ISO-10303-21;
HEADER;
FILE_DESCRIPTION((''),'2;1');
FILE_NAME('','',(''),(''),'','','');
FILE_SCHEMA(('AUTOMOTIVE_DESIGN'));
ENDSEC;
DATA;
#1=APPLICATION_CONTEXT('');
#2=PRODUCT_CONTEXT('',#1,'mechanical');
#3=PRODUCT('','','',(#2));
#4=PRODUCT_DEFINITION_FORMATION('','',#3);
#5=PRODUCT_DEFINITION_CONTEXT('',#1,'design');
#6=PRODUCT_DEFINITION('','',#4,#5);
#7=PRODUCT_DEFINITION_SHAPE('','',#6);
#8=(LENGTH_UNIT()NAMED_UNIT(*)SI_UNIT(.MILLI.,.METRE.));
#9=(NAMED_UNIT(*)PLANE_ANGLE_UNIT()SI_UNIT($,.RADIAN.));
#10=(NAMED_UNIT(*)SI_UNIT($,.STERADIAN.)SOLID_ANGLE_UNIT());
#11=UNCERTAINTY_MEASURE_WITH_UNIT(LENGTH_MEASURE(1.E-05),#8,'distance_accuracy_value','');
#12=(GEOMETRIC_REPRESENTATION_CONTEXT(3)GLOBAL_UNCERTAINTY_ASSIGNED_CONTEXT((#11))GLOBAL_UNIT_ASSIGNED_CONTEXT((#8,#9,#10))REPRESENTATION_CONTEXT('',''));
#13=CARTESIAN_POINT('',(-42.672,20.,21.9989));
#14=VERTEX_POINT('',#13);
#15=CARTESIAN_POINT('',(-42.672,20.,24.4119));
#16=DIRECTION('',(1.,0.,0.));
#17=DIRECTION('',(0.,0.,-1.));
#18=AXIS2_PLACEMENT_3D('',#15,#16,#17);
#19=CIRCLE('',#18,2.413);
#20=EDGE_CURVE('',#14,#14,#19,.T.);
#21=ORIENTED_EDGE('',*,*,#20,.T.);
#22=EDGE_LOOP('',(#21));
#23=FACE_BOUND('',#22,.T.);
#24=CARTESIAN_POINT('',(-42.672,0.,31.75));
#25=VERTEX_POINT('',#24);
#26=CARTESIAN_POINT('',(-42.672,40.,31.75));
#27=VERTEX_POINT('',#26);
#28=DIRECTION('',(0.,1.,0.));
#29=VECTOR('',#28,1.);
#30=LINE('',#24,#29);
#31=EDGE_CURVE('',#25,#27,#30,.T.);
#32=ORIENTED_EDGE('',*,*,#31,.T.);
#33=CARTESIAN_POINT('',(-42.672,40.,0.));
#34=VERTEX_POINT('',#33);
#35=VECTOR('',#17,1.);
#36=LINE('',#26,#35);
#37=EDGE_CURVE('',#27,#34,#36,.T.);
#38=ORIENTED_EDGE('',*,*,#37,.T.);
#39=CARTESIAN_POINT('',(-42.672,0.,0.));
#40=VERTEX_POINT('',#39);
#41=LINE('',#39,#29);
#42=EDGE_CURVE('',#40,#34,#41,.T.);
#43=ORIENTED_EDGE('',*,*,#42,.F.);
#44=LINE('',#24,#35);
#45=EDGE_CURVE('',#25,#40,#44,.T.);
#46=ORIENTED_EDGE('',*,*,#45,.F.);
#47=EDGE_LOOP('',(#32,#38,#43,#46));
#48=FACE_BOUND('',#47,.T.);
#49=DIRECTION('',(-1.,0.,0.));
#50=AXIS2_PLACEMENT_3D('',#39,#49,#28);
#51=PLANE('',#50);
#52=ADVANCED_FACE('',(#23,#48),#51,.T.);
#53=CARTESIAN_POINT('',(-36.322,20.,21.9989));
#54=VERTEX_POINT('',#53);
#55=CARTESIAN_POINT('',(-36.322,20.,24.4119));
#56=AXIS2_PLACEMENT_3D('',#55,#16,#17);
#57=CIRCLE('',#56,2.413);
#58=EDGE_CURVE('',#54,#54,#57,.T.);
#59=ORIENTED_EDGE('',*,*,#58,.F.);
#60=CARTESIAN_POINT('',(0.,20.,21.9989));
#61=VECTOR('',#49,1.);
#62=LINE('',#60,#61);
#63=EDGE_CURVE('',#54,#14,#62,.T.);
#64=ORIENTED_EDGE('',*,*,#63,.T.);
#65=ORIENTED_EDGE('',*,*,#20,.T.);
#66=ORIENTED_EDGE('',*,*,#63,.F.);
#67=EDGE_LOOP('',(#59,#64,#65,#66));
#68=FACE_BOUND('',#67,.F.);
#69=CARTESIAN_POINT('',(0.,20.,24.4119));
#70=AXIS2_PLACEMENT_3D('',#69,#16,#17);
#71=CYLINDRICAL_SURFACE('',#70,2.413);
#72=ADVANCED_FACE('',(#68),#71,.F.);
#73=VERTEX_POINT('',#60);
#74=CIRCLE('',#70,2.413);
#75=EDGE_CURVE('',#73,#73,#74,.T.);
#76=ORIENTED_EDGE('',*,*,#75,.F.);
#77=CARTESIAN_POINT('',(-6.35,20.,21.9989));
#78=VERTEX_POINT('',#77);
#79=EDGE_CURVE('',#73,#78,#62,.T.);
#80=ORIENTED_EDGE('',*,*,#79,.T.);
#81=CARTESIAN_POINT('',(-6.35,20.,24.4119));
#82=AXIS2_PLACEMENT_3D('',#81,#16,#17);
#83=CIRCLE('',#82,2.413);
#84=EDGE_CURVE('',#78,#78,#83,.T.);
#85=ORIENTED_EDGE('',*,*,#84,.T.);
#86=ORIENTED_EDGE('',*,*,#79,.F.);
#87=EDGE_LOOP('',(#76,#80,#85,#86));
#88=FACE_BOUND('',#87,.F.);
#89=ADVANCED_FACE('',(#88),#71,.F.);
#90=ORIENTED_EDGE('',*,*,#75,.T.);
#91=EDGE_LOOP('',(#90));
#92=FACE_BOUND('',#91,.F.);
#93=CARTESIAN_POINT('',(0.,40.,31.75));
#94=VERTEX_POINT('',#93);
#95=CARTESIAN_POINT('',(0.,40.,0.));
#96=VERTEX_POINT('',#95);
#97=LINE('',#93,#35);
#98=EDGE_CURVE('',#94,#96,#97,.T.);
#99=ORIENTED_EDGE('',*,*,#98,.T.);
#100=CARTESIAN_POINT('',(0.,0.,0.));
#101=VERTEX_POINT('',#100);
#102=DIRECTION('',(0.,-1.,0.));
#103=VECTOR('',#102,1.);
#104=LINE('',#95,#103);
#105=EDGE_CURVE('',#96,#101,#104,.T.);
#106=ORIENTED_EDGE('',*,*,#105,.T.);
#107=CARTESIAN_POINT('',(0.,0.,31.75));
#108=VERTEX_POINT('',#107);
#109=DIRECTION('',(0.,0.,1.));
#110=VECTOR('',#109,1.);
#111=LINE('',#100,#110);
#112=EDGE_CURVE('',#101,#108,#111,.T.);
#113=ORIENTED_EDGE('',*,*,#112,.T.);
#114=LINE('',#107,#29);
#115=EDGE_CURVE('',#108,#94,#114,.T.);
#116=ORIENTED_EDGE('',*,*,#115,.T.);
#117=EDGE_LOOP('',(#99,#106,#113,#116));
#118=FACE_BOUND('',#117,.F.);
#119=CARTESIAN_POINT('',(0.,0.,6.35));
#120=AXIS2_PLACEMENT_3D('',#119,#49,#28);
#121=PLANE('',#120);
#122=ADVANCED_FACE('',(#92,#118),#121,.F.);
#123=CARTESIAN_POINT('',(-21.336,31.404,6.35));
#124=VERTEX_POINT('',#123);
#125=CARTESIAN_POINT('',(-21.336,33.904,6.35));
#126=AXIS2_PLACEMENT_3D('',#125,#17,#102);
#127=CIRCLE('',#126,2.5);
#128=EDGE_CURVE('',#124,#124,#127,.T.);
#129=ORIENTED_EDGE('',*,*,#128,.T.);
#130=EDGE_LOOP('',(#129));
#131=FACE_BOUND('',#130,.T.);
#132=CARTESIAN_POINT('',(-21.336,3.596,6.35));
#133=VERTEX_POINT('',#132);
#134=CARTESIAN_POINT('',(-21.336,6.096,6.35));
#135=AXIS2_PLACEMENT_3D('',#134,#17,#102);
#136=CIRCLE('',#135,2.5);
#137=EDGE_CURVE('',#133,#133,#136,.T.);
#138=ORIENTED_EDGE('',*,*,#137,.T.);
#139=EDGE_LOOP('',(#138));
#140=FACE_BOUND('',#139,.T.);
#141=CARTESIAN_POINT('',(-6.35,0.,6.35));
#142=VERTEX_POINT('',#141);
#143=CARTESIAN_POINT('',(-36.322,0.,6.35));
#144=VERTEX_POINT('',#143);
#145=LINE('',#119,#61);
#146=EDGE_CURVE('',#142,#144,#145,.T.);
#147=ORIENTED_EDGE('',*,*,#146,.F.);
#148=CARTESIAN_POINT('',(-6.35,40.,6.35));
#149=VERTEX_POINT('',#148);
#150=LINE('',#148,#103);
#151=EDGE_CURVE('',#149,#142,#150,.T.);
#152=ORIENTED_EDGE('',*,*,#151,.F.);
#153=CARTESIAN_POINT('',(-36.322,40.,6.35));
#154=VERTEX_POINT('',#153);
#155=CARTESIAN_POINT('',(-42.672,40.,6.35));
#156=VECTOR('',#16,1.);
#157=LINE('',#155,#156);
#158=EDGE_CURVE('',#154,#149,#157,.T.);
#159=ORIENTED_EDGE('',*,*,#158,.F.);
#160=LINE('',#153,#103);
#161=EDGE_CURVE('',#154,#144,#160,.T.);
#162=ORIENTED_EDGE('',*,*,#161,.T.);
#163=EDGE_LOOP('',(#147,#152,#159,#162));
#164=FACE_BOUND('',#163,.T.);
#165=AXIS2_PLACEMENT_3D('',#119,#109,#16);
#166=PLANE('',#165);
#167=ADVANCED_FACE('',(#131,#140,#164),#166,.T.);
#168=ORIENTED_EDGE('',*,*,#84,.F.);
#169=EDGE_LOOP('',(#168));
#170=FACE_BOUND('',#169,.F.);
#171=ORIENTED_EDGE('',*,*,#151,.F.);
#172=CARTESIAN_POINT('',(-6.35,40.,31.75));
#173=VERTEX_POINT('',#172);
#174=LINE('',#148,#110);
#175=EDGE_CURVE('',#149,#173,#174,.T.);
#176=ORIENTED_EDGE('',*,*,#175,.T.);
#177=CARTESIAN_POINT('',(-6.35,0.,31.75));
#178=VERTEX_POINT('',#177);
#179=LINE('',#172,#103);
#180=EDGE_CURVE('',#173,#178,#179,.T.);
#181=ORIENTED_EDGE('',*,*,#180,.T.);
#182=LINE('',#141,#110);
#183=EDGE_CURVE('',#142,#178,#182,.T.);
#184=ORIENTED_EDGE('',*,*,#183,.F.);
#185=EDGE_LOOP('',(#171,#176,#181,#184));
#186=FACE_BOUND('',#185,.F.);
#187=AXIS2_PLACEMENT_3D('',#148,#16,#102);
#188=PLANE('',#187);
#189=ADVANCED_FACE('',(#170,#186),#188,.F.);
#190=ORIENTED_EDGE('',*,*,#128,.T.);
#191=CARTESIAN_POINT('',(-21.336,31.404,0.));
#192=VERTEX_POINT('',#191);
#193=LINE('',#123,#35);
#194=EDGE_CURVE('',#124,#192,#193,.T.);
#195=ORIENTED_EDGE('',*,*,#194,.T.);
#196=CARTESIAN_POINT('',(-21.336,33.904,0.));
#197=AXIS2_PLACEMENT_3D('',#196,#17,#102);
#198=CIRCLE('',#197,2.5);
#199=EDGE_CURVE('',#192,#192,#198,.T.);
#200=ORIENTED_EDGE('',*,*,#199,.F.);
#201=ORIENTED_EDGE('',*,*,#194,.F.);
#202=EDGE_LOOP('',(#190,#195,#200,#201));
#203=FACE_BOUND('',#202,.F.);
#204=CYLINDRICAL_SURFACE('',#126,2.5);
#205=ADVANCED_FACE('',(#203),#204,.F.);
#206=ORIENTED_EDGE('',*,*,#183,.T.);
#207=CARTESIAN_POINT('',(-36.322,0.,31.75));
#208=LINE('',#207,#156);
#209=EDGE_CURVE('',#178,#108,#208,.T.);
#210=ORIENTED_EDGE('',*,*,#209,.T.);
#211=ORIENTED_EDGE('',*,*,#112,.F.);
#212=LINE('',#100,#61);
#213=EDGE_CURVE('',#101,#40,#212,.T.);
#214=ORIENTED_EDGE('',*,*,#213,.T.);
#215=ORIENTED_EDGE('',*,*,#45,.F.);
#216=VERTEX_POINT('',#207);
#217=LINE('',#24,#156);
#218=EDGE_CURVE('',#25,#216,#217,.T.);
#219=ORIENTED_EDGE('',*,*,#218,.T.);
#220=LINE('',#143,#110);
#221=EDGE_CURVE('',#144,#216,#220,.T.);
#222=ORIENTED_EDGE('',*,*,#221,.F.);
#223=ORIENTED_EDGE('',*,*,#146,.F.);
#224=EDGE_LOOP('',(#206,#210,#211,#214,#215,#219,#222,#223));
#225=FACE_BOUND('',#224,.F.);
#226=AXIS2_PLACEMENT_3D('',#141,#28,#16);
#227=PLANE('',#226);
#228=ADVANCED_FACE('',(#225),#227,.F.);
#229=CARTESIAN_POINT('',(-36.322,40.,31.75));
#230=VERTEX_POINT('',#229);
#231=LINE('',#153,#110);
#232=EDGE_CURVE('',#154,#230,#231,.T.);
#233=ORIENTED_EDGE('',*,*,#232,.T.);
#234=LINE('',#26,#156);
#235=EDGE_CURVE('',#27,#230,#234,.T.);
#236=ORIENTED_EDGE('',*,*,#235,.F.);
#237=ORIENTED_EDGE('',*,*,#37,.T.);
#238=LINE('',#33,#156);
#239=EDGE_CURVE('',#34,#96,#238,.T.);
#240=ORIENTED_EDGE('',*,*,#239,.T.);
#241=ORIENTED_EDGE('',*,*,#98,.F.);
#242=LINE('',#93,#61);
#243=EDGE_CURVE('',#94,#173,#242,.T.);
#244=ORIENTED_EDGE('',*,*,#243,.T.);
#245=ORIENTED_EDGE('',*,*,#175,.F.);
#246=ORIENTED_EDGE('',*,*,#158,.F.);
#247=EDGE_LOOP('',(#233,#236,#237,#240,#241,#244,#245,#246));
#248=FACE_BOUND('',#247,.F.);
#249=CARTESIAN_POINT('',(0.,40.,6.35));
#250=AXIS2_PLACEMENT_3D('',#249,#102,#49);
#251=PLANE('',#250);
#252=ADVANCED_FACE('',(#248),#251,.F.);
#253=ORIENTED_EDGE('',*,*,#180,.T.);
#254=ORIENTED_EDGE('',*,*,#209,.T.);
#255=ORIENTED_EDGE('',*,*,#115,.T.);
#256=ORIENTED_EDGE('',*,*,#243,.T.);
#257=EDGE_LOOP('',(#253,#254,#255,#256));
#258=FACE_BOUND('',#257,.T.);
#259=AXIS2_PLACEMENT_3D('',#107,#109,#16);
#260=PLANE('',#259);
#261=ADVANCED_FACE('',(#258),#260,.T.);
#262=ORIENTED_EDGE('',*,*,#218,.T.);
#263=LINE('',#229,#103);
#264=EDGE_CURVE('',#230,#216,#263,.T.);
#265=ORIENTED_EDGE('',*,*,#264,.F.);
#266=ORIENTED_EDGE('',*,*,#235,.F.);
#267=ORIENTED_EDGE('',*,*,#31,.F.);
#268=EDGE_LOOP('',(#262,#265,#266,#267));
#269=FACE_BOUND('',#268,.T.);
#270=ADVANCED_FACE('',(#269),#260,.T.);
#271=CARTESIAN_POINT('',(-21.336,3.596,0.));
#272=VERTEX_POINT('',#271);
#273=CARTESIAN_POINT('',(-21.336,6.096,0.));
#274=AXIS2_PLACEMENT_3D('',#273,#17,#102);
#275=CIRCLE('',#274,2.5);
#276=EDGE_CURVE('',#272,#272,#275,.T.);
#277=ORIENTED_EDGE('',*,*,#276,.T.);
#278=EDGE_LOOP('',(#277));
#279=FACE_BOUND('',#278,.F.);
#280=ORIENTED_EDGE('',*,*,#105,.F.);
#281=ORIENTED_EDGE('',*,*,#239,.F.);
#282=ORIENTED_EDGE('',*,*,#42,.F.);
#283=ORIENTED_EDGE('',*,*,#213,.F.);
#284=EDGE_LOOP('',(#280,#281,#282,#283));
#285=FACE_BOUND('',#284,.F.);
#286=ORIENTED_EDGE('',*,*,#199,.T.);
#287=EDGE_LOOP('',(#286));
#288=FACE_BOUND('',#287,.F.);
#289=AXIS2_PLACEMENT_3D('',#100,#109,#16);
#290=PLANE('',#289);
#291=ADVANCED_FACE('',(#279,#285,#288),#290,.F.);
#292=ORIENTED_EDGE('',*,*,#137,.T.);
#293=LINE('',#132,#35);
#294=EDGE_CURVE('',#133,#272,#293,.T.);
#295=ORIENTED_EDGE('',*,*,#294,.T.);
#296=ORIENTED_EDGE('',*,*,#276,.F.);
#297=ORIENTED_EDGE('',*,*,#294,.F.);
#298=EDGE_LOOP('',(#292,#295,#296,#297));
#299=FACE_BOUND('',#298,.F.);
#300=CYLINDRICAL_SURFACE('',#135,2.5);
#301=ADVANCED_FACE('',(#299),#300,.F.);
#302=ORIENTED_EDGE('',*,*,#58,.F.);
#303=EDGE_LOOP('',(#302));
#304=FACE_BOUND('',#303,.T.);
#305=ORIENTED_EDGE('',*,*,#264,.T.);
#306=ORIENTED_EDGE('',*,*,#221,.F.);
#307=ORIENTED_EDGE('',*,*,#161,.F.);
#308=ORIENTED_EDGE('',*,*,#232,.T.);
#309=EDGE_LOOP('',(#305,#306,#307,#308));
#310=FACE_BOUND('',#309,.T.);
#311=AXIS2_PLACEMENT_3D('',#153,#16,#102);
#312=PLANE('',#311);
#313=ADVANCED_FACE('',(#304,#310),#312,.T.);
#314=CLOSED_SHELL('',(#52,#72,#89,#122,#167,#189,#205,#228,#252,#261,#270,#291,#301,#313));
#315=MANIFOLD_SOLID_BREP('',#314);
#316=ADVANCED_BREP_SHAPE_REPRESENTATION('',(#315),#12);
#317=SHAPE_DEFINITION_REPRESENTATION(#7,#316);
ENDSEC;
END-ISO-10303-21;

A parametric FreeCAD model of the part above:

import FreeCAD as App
import Part
import Sketcher
Q = App.Units.Quantity

doc = App.newDocument("Part")
body = doc.addObject("PartDesign::Body", "Body")

sketch1 = body.newObject("Sketcher::SketchObject", "Sketch")
sketch1.AttachmentSupport = (doc.getObject("XY_Plane"), [""])
sketch1.MapMode = "FlatFace"
sketch1.addGeometry([
    Part.LineSegment(App.Vector(-42.672, 0, 0), App.Vector(0, 0, 0)),
    Part.LineSegment(App.Vector(0, 0, 0), App.Vector(0, 40, 0)),
    Part.LineSegment(App.Vector(0, 40, 0), App.Vector(-42.672, 40, 0)),
    Part.LineSegment(App.Vector(-42.672, 40, 0), App.Vector(-42.672, 0, 0)),
], False)
sketch1.addConstraint([
    Sketcher.Constraint("Coincident", 0, 2, 1, 1),
    Sketcher.Constraint("Coincident", 1, 2, 2, 1),
    Sketcher.Constraint("Coincident", 2, 2, 3, 1),
    Sketcher.Constraint("Coincident", 3, 2, 0, 1),
    Sketcher.Constraint("Horizontal", 0),
    Sketcher.Constraint("Vertical", 1),
    Sketcher.Constraint("Horizontal", 2),
    Sketcher.Constraint("Vertical", 3),
    Sketcher.Constraint("Coincident", 0, 2, -1, 1),
    Sketcher.Constraint("DistanceX", 0, 1, 0, 2, Q("1.68 in")),
    Sketcher.Constraint("DistanceY", 1, 1, 1, 2, Q("1.5748 in")),
])
pad1 = body.newObject("PartDesign::Pad", "Pad")
pad1.Profile = sketch1
pad1.Length = Q("0.25 in")

sketch2 = body.newObject("Sketcher::SketchObject", "Sketch001")
sketch2.AttachmentSupport = (doc.getObject("XY_Plane"), [""])
sketch2.MapMode = "FlatFace"
sketch2.AttachmentOffset = App.Placement(App.Vector(0, 0, 0.25 * 25.4), App.Rotation())
sketch2.addGeometry([
    Part.LineSegment(App.Vector(-42.672, 40, 0), App.Vector(-42.672, 0, 0)),
    Part.LineSegment(App.Vector(-42.672, 0, 0), App.Vector(-36.322, 0, 0)),
    Part.LineSegment(App.Vector(-36.322, 0, 0), App.Vector(-36.322, 40, 0)),
    Part.LineSegment(App.Vector(-36.322, 40, 0), App.Vector(-42.672, 40, 0)),
], False)
sketch2.addConstraint([
    Sketcher.Constraint("Coincident", 0, 2, 1, 1),
    Sketcher.Constraint("Coincident", 1, 2, 2, 1),
    Sketcher.Constraint("Coincident", 2, 2, 3, 1),
    Sketcher.Constraint("Coincident", 3, 2, 0, 1),
    Sketcher.Constraint("Vertical", 0),
    Sketcher.Constraint("Horizontal", 1),
    Sketcher.Constraint("Vertical", 2),
    Sketcher.Constraint("Horizontal", 3),
    Sketcher.Constraint("PointOnObject", 0, 2, -1),
    Sketcher.Constraint("DistanceX", 1, 1, 1, 2, Q("0.25 in")),
    Sketcher.Constraint("DistanceX", 0, 2, -1, 1, Q("1.68 in")),
    Sketcher.Constraint("DistanceY", 0, 2, 0, 1, Q("1.5748 in")),
])
pad2 = body.newObject("PartDesign::Pad", "Pad001")
pad2.Profile = sketch2
pad2.Length = Q("1 in")

sketch3 = body.newObject("Sketcher::SketchObject", "Sketch002")
sketch3.AttachmentSupport = (doc.getObject("XY_Plane"), [""])
sketch3.MapMode = "FlatFace"
sketch3.AttachmentOffset = App.Placement(App.Vector(0, 0, 0.25 * 25.4), App.Rotation())
sketch3.addGeometry([
    Part.LineSegment(App.Vector(-6.35, 40, 0), App.Vector(-6.35, 0, 0)),
    Part.LineSegment(App.Vector(-6.35, 0, 0), App.Vector(0, 0, 0)),
    Part.LineSegment(App.Vector(0, 0, 0), App.Vector(0, 40, 0)),
    Part.LineSegment(App.Vector(0, 40, 0), App.Vector(-6.35, 40, 0)),
], False)
sketch3.addConstraint([
    Sketcher.Constraint("Coincident", 0, 2, 1, 1),
    Sketcher.Constraint("Coincident", 1, 2, 2, 1),
    Sketcher.Constraint("Coincident", 2, 2, 3, 1),
    Sketcher.Constraint("Coincident", 3, 2, 0, 1),
    Sketcher.Constraint("Vertical", 0),
    Sketcher.Constraint("Horizontal", 1),
    Sketcher.Constraint("Vertical", 2),
    Sketcher.Constraint("Horizontal", 3),
    Sketcher.Constraint("Coincident", 1, 2, -1, 1),
    Sketcher.Constraint("DistanceX", 1, 1, 1, 2, Q("0.25 in")),
    Sketcher.Constraint("DistanceY", 0, 2, 0, 1, Q("1.5748 in")),
])
pad3 = body.newObject("PartDesign::Pad", "Pad002")
pad3.Profile = sketch3
pad3.Length = Q("1 in")

sketch4 = body.newObject("Sketcher::SketchObject", "Sketch003")
sketch4.AttachmentSupport = (doc.getObject("YZ_Plane"), [""])
sketch4.MapMode = "FlatFace"
sketch4.addGeometry(Part.Circle(App.Vector(20, 24.4119, 0), App.Vector(0, 0, 1), 2.413), False)
sketch4.addConstraint([
    Sketcher.Constraint("Diameter", 0, Q("0.19 in")),
    Sketcher.Constraint("DistanceX", -1, 1, 0, 3, Q("0.7874 in")),
    Sketcher.Constraint("DistanceY", -1, 1, 0, 3, Q("0.9611 in")),
])
pocket1 = body.newObject("PartDesign::Pocket", "Pocket")
pocket1.Profile = sketch4
pocket1.Length = Q("3 in")

sketch5 = body.newObject("Sketcher::SketchObject", "Sketch004")
sketch5.AttachmentSupport = (doc.getObject("XY_Plane"), [""])
sketch5.MapMode = "FlatFace"
sketch5.AttachmentOffset = App.Placement(App.Vector(0, 0, 0.25 * 25.4), App.Rotation())
sketch5.addGeometry([
    Part.Circle(App.Vector(-21.336, 33.904, 0), App.Vector(0, 0, 1), 2.5),
    Part.Circle(App.Vector(-21.336, 6.096, 0), App.Vector(0, 0, 1), 2.5),
], False)
sketch5.addConstraint([
    Sketcher.Constraint("Equal", 0, 1),
    Sketcher.Constraint("Vertical", 0, 3, 1, 3),
    Sketcher.Constraint("Diameter", 0, 5.0),
    Sketcher.Constraint("DistanceX", 0, 3, -1, 1, Q("0.84 in")),
    Sketcher.Constraint("DistanceY", -1, 1, 1, 3, Q("0.24 in")),
    Sketcher.Constraint("DistanceY", -1, 1, 0, 3, Q("1.3348 in")),
])
doc.recompute()
hole = body.newObject("PartDesign::Hole", "Hole")
hole.Profile = sketch5
hole.ThreadType = "None"
hole.Diameter = 5
hole.DepthType = "ThroughAll"

doc.recompute()
